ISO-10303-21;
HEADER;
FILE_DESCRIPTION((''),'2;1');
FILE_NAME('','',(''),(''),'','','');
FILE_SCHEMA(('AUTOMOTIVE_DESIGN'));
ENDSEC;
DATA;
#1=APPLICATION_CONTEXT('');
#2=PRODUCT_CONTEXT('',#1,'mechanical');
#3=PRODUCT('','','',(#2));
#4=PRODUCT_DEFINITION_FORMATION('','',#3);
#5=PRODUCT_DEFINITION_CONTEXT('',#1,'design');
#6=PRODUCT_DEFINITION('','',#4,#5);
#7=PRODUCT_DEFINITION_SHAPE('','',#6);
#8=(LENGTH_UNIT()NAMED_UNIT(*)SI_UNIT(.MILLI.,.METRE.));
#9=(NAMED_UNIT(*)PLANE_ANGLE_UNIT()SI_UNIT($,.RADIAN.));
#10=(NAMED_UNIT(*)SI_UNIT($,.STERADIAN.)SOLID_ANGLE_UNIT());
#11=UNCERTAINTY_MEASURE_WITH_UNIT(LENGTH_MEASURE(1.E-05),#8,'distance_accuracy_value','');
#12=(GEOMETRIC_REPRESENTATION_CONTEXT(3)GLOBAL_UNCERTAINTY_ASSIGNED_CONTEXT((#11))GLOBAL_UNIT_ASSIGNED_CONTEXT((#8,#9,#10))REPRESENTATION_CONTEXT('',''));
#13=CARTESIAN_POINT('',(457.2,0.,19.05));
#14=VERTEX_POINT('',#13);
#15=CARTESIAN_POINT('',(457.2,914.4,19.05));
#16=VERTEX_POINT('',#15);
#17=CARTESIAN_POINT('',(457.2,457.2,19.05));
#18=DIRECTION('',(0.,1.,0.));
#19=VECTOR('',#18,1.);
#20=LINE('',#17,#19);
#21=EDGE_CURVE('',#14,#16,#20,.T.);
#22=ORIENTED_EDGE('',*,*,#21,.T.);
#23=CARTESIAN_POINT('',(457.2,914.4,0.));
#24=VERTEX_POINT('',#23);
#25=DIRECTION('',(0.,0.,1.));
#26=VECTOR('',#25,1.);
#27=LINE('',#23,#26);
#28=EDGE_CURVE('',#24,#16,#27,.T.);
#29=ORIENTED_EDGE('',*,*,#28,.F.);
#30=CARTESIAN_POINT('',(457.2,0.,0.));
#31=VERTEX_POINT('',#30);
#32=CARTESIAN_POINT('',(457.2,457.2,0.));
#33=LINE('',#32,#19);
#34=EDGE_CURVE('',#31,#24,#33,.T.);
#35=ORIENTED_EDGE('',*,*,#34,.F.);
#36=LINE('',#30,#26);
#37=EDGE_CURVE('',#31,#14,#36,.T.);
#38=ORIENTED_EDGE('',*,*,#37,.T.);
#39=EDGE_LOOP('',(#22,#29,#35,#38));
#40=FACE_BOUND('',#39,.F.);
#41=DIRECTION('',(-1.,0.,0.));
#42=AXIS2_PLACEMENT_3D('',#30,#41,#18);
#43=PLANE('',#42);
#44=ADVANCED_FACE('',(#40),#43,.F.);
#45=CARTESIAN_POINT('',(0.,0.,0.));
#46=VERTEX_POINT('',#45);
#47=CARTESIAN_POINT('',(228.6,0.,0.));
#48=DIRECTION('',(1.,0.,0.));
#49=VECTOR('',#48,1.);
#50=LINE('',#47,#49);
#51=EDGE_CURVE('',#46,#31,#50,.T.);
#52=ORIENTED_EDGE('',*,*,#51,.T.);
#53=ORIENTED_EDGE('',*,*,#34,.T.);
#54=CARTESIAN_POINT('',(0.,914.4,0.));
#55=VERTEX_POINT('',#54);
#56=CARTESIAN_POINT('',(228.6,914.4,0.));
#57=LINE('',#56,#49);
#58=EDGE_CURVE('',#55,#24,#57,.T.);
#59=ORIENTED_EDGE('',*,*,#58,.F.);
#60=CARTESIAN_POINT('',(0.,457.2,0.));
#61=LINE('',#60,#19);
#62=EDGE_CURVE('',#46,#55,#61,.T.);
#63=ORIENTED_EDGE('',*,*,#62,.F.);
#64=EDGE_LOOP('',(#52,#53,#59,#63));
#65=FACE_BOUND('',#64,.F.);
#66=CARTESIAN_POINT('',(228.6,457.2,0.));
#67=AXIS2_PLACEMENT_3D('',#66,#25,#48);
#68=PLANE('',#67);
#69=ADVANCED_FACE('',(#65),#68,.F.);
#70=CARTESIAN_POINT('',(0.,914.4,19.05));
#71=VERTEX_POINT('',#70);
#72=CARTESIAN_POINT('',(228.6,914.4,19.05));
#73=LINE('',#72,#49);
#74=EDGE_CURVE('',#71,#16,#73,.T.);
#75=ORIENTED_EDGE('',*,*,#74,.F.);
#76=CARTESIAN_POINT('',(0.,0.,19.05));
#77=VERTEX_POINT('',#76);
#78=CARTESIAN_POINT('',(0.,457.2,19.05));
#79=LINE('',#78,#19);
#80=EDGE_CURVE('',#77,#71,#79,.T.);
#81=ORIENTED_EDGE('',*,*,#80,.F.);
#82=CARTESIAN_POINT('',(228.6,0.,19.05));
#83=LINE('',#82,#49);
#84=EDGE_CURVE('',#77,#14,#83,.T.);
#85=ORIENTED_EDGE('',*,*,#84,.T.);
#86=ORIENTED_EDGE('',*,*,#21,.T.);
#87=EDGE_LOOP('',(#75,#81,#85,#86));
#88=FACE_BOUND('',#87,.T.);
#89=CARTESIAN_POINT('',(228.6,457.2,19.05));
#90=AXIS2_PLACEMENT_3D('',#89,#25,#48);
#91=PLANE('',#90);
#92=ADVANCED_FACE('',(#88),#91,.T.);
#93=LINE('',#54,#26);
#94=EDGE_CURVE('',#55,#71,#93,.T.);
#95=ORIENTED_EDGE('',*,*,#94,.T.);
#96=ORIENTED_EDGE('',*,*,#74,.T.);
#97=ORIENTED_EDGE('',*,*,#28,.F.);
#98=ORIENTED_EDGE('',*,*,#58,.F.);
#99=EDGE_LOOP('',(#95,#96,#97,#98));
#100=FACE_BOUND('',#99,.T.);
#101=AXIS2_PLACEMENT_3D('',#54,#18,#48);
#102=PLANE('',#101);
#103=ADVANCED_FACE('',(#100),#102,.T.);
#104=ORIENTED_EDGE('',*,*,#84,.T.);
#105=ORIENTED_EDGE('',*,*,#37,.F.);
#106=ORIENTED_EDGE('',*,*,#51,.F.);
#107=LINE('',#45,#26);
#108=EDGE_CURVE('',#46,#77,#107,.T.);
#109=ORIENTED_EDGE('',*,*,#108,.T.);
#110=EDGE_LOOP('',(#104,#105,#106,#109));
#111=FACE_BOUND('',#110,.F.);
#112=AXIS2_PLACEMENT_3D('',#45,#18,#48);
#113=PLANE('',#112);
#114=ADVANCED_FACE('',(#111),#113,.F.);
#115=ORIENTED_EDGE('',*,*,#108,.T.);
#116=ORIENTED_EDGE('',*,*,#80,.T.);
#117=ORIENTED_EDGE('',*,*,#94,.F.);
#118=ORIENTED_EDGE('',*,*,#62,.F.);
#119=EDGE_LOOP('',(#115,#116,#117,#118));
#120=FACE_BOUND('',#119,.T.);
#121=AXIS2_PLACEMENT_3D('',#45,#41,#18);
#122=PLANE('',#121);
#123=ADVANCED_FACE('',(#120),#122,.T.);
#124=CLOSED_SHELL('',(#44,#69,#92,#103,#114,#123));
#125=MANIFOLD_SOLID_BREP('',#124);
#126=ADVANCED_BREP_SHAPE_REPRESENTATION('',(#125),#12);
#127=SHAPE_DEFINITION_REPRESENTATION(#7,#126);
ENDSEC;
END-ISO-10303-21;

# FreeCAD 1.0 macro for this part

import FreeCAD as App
import Part
import Sketcher
from FreeCAD import Vector
Q = App.Units.Quantity

doc = App.newDocument("Part")
body = doc.addObject("PartDesign::Body", "Body")

# Sketch on XY plane
sketch1 = body.newObject("Sketcher::SketchObject", "Sketch")
sketch1.AttachmentSupport = (doc.getObject("XY_Plane"), [""])
sketch1.MapMode = "FlatFace"
sketch1.addGeometry(Part.LineSegment(Vector(0, 914.4, 0), Vector(0, 0, 0)), False)
sketch1.addGeometry(Part.LineSegment(Vector(0, 0, 0), Vector(457.2, 0, 0)), False)
sketch1.addGeometry(Part.LineSegment(Vector(457.2, 0, 0), Vector(457.2, 914.4, 0)), False)
sketch1.addGeometry(Part.LineSegment(Vector(457.2, 914.4, 0), Vector(0, 914.4, 0)), False)
sketch1.addConstraint(Sketcher.Constraint("Coincident", 0, 2, 1, 1))
sketch1.addConstraint(Sketcher.Constraint("Coincident", 1, 2, 2, 1))
sketch1.addConstraint(Sketcher.Constraint("Coincident", 2, 2, 3, 1))
sketch1.addConstraint(Sketcher.Constraint("Coincident", 3, 2, 0, 1))
sketch1.addConstraint(Sketcher.Constraint("Vertical", 0))
sketch1.addConstraint(Sketcher.Constraint("Horizontal", 1))
sketch1.addConstraint(Sketcher.Constraint("Vertical", 2))
sketch1.addConstraint(Sketcher.Constraint("Horizontal", 3))
sketch1.addConstraint(Sketcher.Constraint("Coincident", 0, 2, -1, 1))
sketch1.addConstraint(Sketcher.Constraint("DistanceX", 1, 1, 1, 2, Q("18 in")))
sketch1.addConstraint(Sketcher.Constraint("DistanceY", 0, 2, 0, 1, Q("36 in")))
pad1 = body.newObject("PartDesign::Pad", "Pad")
pad1.Profile = sketch1
pad1.Length = Q("0.75 in")

doc.recompute()
